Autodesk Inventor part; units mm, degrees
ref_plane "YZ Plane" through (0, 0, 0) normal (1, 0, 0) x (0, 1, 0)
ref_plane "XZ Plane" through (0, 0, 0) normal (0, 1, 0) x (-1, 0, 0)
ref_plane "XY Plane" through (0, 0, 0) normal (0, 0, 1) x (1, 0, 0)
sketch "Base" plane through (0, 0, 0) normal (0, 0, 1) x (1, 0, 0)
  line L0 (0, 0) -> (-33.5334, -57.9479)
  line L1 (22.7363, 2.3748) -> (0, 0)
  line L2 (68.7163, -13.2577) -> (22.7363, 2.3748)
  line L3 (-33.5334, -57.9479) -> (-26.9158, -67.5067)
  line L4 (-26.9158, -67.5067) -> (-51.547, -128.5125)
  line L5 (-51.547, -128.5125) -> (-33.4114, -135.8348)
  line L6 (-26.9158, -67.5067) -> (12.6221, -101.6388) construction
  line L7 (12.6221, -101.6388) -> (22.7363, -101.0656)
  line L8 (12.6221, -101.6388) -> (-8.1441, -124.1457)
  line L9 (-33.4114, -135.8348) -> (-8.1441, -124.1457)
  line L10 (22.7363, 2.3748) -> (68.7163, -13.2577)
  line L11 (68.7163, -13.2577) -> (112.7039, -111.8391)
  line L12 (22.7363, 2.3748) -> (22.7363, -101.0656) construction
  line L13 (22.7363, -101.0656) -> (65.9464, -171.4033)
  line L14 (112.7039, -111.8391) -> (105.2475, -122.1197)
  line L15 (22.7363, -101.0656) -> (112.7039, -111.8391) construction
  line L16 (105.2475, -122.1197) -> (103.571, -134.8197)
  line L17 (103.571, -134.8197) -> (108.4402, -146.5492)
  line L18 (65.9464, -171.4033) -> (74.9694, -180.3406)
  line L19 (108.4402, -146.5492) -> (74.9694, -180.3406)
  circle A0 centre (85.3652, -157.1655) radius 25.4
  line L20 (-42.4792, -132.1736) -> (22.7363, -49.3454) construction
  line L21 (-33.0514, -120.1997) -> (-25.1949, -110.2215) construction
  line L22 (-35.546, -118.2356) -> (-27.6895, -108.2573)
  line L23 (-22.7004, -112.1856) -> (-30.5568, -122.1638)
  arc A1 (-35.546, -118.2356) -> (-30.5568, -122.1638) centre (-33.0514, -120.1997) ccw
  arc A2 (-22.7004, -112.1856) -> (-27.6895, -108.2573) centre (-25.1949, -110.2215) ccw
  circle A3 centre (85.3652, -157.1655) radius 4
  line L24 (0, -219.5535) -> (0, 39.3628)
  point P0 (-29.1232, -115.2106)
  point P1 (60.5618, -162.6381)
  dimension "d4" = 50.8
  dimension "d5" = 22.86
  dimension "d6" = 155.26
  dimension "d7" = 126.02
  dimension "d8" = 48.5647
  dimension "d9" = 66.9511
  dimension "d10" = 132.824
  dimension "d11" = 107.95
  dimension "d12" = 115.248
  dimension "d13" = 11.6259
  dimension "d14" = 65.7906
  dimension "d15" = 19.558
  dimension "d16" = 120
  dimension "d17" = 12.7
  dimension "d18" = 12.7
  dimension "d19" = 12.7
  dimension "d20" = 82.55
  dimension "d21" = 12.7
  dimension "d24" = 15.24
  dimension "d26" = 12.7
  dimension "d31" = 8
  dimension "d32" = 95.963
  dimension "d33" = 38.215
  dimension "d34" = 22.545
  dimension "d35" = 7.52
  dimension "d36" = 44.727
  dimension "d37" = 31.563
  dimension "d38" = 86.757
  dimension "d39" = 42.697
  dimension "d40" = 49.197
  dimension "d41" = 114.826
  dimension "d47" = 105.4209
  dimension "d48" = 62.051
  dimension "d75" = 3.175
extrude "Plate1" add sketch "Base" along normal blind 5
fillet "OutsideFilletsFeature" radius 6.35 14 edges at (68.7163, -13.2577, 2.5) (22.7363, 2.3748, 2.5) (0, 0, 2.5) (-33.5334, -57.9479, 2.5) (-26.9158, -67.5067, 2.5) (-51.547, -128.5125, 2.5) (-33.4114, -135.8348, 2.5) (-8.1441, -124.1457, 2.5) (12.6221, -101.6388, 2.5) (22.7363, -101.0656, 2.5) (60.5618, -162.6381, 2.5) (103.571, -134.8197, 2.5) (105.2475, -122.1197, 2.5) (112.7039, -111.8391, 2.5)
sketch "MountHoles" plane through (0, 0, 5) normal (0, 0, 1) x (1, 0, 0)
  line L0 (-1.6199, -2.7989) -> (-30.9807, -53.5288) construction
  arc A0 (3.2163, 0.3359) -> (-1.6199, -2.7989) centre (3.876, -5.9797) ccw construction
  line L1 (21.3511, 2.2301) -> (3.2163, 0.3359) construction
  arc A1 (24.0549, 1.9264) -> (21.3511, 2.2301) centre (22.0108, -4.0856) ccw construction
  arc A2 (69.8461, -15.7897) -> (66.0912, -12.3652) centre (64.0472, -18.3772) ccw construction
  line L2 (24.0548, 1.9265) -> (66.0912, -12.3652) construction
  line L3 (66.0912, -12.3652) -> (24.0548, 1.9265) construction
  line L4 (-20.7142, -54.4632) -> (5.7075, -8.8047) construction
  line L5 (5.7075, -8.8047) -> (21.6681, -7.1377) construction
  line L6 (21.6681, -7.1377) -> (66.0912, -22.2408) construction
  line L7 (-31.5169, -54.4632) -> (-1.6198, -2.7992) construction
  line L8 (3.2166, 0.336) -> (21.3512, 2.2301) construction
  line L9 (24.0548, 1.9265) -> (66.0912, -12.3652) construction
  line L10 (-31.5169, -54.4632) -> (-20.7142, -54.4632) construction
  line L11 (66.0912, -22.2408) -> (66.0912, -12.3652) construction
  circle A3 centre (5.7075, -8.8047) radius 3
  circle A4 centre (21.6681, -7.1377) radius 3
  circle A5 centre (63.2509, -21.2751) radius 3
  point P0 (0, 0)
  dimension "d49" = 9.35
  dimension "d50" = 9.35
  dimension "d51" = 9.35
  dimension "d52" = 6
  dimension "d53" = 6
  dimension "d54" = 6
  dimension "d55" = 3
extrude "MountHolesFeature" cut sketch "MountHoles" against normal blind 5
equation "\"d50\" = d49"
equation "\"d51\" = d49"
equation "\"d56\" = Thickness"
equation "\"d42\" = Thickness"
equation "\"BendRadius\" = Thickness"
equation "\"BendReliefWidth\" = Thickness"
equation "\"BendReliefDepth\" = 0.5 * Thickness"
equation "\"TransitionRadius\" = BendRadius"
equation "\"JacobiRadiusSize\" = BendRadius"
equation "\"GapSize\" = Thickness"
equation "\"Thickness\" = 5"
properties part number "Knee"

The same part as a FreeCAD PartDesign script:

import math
import FreeCAD as App
import Part
import Sketcher
from FreeCAD import Vector
Q = App.Units.Quantity


def edges_at(feature, points):
    """Names of the edges that pass closest to the given points."""
    edges = feature.Shape.Edges
    near = lambda p: min(range(len(edges)), key=lambda i: edges[i].distToShape(Part.Vertex(*p))[0])
    return sorted({f"Edge{near(p) + 1}" for p in points})

doc = App.newDocument("Part")
params = doc.addObject("Spreadsheet::Sheet", "Params")
for row, (alias, value) in enumerate([
    ("sketch1_radius", "1 in"),
    ("sketch1_radius2", "0.125 in"),
    ("sketch1_length", "0.5 in"),
    ("sketch1_length2", "0.9 in"),
    ("sketch1_length3", "4.25 in"),
    ("pad1_length", "5 mm"),
    ("fillet_radius", "0.25 in"),
    ("pocket1_length", "5 mm"),
], start=1):
    params.set(f"A{row}", alias)
    params.set(f"B{row}", "=" + value)
    params.setAlias(f"B{row}", alias)

body = doc.addObject("PartDesign::Body", "Body")

sketch1 = doc.addObject("Sketcher::SketchObject", "Sketch")
body.addObject(sketch1)
sketch1.AttachmentSupport = (doc.XY_Plane, [""])
sketch1.MapMode = "FlatFace"
sketch1.addGeometry(Part.LineSegment(Vector(-8.1441, -124.1457, 0), Vector(12.6221, -101.6388, 0)), False)
sketch1.addGeometry(Part.LineSegment(Vector(12.6221, -101.6388, 0), Vector(22.7363, -101.0656, 0)), False)
sketch1.addGeometry(Part.LineSegment(Vector(22.7363, -101.0656, 0), Vector(60.561775, -162.638171, 0)), False)
sketch1.addGeometry(Part.ArcOfCircle(Part.Circle(Vector(85.3652, -157.1655, 0), Vector(0, 0, 1), 25.4), math.radians(-167.557515), math.radians(24.706119)), False)
sketch1.addGeometry(Part.LineSegment(Vector(108.4402, -146.5492, 0), Vector(103.571, -134.8197, 0)), False)
sketch1.addGeometry(Part.LineSegment(Vector(103.571, -134.8197, 0), Vector(105.2475, -122.1197, 0)), False)
sketch1.addGeometry(Part.LineSegment(Vector(105.2475, -122.1197, 0), Vector(112.7039, -111.8391, 0)), False)
sketch1.addGeometry(Part.LineSegment(Vector(112.7039, -111.8391, 0), Vector(68.7163, -13.2577, 0)), False)
sketch1.addGeometry(Part.LineSegment(Vector(68.7163, -13.2577, 0), Vector(22.7363, 2.3748, 0)), False)
sketch1.addGeometry(Part.LineSegment(Vector(22.7363, 2.3748, 0), Vector(0, 0, 0)), False)
sketch1.addGeometry(Part.LineSegment(Vector(0, 0, 0), Vector(-33.5334, -57.9479, 0)), False)
sketch1.addGeometry(Part.LineSegment(Vector(-33.5334, -57.9479, 0), Vector(-26.9158, -67.5067, 0)), False)
sketch1.addGeometry(Part.LineSegment(Vector(-26.9158, -67.5067, 0), Vector(-51.547, -128.5125, 0)), False)
sketch1.addGeometry(Part.LineSegment(Vector(-51.547, -128.5125, 0), Vector(-33.4114, -135.8348, 0)), False)
sketch1.addGeometry(Part.LineSegment(Vector(-33.4114, -135.8348, 0), Vector(-8.1441, -124.1457, 0)), False)
sketch1.addGeometry(Part.ArcOfCircle(Part.Circle(Vector(-33.0514, -120.1997, 0), Vector(0, 0, 1), 3.175015), math.radians(141.785203), math.radians(321.785203)), False)
sketch1.addGeometry(Part.LineSegment(Vector(-35.546, -118.2356, 0), Vector(-27.6895, -108.2573, 0)), False)
sketch1.addGeometry(Part.ArcOfCircle(Part.Circle(Vector(-25.1949, -110.2215, 0), Vector(0, 0, 1), 3.174936), math.radians(-38.215913), math.radians(141.783786)), False)
sketch1.addGeometry(Part.LineSegment(Vector(-22.7004, -112.1856, 0), Vector(-30.5568, -122.1638, 0)), False)
sketch1.addGeometry(Part.Circle(Vector(85.3652, -157.1655, 0), Vector(0, 0, 1), 4), False)
sketch1.addConstraint(Sketcher.Constraint("Coincident", 0, 2, 1, 1))
sketch1.addConstraint(Sketcher.Constraint("Coincident", 1, 2, 2, 1))
sketch1.addConstraint(Sketcher.Constraint("Coincident", 2, 2, 3, 1))
sketch1.addConstraint(Sketcher.Constraint("Coincident", 3, 2, 4, 1))
sketch1.addConstraint(Sketcher.Constraint("Coincident", 4, 2, 5, 1))
sketch1.addConstraint(Sketcher.Constraint("Coincident", 5, 2, 6, 1))
sketch1.addConstraint(Sketcher.Constraint("Coincident", 6, 2, 7, 1))
sketch1.addConstraint(Sketcher.Constraint("Coincident", 7, 2, 8, 1))
sketch1.addConstraint(Sketcher.Constraint("Coincident", 8, 2, 9, 1))
sketch1.addConstraint(Sketcher.Constraint("Coincident", 9, 2, 10, 1))
sketch1.addConstraint(Sketcher.Constraint("Coincident", 10, 2, 11, 1))
sketch1.addConstraint(Sketcher.Constraint("Coincident", 11, 2, 12, 1))
sketch1.addConstraint(Sketcher.Constraint("Coincident", 12, 2, 13, 1))
sketch1.addConstraint(Sketcher.Constraint("Coincident", 13, 2, 14, 1))
sketch1.addConstraint(Sketcher.Constraint("Coincident", 14, 2, 0, 1))
sketch1.addConstraint(Sketcher.Constraint("Tangent", 15, 1, 16, 1))
sketch1.addConstraint(Sketcher.Constraint("Tangent", 16, 2, 17, 2))
sketch1.addConstraint(Sketcher.Constraint("Tangent", 17, 1, 18, 1))
sketch1.addConstraint(Sketcher.Constraint("Tangent", 18, 2, 15, 2))
sketch1.addConstraint(Sketcher.Constraint("Coincident", 9, 2, -1, 1))
sketch1.addConstraint(Sketcher.Constraint("Coincident", 19, 3, 3, 3))
sketch1.addConstraint(Sketcher.Constraint("Equal", 15, 17))
sketch1.addConstraint(Sketcher.Constraint("Perpendicular", 12, 13))
sketch1.addConstraint(Sketcher.Constraint("Vertical", 1, 2, 8, 2))
sketch1.addConstraint(Sketcher.Constraint("Equal", 4, 6))
sketch1.addConstraint(Sketcher.Constraint("Equal", 6, 16))
sketch1.addConstraint(Sketcher.Constraint("Radius", 3, Q("1 in")))
sketch1.addConstraint(Sketcher.Constraint("Radius", 15, Q("0.125 in")))
sketch1.addConstraint(Sketcher.Constraint("Distance", 4, Q("0.5 in")))
sketch1.addConstraint(Sketcher.Constraint("Distance", 9, Q("0.9 in")))
sketch1.addConstraint(Sketcher.Constraint("DistanceY", 4, 2, 5, 2, Q("0.5 in")))
sketch1.addConstraint(Sketcher.Constraint("Distance", 7, Q("4.25 in")))
sketch1.addConstraint(Sketcher.Constraint("Distance", 13, Q("0.77 in")))
sketch1.addConstraint(Sketcher.Constraint("Diameter", 19, Q("8 mm")))
sketch1.addConstraint(Sketcher.Constraint("Distance", 8, Q("1.912 in")))
sketch1.addConstraint(Sketcher.Constraint("Distance", 10, Q("66.951 mm")))
sketch1.addConstraint(Sketcher.Constraint("Distance", 11, Q("11.626 mm")))
sketch1.addConstraint(Sketcher.Constraint("Distance", 12, Q("65.7906 mm")))
sketch1.addConstraint(Sketcher.Constraint("Angle", 5, Q("82.48 deg")))
sketch1.addConstraint(Sketcher.Constraint("Distance", 2, Q("2.845 in")))
sketch1.addConstraint(Sketcher.Constraint("DistanceY", 1, 2, 7, 2, Q("3.457 in")))
sketch1.addConstraint(Sketcher.Constraint("DistanceX", 12, 2, 13, 2, Q("0.714 in")))
sketch1.addConstraint(Sketcher.Constraint("DistanceX", -1, 1, 3, 2, Q("4.2693 in")))
sketch1.addConstraint(Sketcher.Constraint("DistanceX", -1, 1, 4, 2, Q("4.0776 in")))
sketch1.addConstraint(Sketcher.Constraint("DistanceY", -1, 1, 8, 2, Q("0.0935 in")))
sketch1.addConstraint(Sketcher.Constraint("DistanceX", 12, 2, -1, 1, Q("2.0294 in")))
sketch1.addConstraint(Sketcher.Constraint("DistanceY", 16, 2, -1, 1, Q("4.2621 in")))
sketch1.addConstraint(Sketcher.Constraint("DistanceY", 18, 2, -1, 1, Q("4.8096 in")))
sketch1.addConstraint(Sketcher.Constraint("DistanceY", 3, 3, 17, 3, Q("1.8482 in")))
sketch1.addConstraint(Sketcher.Constraint("DistanceY", 17, 3, 0, 2, Q("0.3379 in")))
sketch1.addConstraint(Sketcher.Constraint("DistanceX", 0, 2, 3, 3, Q("2.8639 in")))
sketch1.addConstraint(Sketcher.Constraint("DistanceX", 0, 2, 1, 2, Q("0.3982 in")))
sketch1.addConstraint(Sketcher.Constraint("DistanceY", 15, 3, 1, 2, Q("0.7533 in")))
sketch1.addConstraint(Sketcher.Constraint("DistanceX", 12, 2, 10, 2, Q("0.7092 in")))
sketch1.addConstraint(Sketcher.Constraint("DistanceX", 17, 3, 14, 2, Q("0.6713 in")))
sketch1.addConstraint(Sketcher.Constraint("DistanceY", 14, 2, 17, 3, Q("0.5482 in")))
sketch1.addConstraint(Sketcher.Constraint("Distance", 0, Q("30.6234 mm")))
sketch1.setExpression("Constraints[26]", "Params.sketch1_radius")
sketch1.setExpression("Constraints[27]", "Params.sketch1_radius2")
sketch1.setExpression("Constraints[28]", "Params.sketch1_length")
sketch1.setExpression("Constraints[29]", "Params.sketch1_length2")
sketch1.setExpression("Constraints[31]", "Params.sketch1_length3")
pad1 = doc.addObject("PartDesign::Pad", "Pad")
body.addObject(pad1)
pad1.Profile = sketch1
pad1.setExpression("Length", "Params.pad1_length")
doc.recompute()

fillet = doc.addObject("PartDesign::Fillet", "Fillet")
body.addObject(fillet)
fillet.Base = (pad1, edges_at(pad1, [
    (68.716, -13.258, 2.5),
    (22.736, 2.375, 2.5),
    (0, 0, 2.5),
    (-33.533, -57.948, 2.5),
    (-26.916, -67.507, 2.5),
    (-51.547, -128.512, 2.5),
    (-33.411, -135.835, 2.5),
    (-8.144, -124.146, 2.5),
    (12.622, -101.639, 2.5),
    (22.736, -101.066, 2.5),
    (60.562, -162.638, 2.5),
    (103.571, -134.82, 2.5),
    (105.248, -122.12, 2.5),
    (112.704, -111.839, 2.5),
]))
fillet.setExpression("Radius", "Params.fillet_radius")

sketch2 = doc.addObject("Sketcher::SketchObject", "Sketch001")
body.addObject(sketch2)
sketch2.AttachmentSupport = (doc.XY_Plane, [""])
sketch2.MapMode = "FlatFace"
sketch2.AttachmentOffset = App.Placement(Vector(0, 0, 5), App.Rotation())
sketch2.addGeometry(Part.Circle(Vector(5.7075, -8.8047, 0), Vector(0, 0, 1), 3), False)
sketch2.addGeometry(Part.Circle(Vector(21.6681, -7.1377, 0), Vector(0, 0, 1), 3), False)
sketch2.addGeometry(Part.Circle(Vector(63.2509, -21.2751, 0), Vector(0, 0, 1), 3), False)
sketch2.addConstraint(Sketcher.Constraint("Equal", 0, 1))
sketch2.addConstraint(Sketcher.Constraint("Equal", 1, 2))
sketch2.addConstraint(Sketcher.Constraint("Diameter", 0, Q("6 mm")))
sketch2.addConstraint(Sketcher.Constraint("DistanceY", 1, 3, -1, 1, Q("0.281 in")))
sketch2.addConstraint(Sketcher.Constraint("DistanceX", -1, 1, 0, 3, Q("0.2247 in")))
sketch2.addConstraint(Sketcher.Constraint("DistanceX", -1, 1, 2, 3, Q("2.4902 in")))
sketch2.addConstraint(Sketcher.Constraint("DistanceY", 2, 3, -1, 1, Q("0.8376 in")))
sketch2.addConstraint(Sketcher.Constraint("DistanceY", 0, 3, -1, 1, Q("8.8047 mm")))
sketch2.addConstraint(Sketcher.Constraint("DistanceX", -1, 1, 1, 3, Q("21.668 mm")))
pocket1 = doc.addObject("PartDesign::Pocket", "Pocket")
body.addObject(pocket1)
pocket1.Profile = sketch2
pocket1.setExpression("Length", "Params.pocket1_length")

doc.recompute()
